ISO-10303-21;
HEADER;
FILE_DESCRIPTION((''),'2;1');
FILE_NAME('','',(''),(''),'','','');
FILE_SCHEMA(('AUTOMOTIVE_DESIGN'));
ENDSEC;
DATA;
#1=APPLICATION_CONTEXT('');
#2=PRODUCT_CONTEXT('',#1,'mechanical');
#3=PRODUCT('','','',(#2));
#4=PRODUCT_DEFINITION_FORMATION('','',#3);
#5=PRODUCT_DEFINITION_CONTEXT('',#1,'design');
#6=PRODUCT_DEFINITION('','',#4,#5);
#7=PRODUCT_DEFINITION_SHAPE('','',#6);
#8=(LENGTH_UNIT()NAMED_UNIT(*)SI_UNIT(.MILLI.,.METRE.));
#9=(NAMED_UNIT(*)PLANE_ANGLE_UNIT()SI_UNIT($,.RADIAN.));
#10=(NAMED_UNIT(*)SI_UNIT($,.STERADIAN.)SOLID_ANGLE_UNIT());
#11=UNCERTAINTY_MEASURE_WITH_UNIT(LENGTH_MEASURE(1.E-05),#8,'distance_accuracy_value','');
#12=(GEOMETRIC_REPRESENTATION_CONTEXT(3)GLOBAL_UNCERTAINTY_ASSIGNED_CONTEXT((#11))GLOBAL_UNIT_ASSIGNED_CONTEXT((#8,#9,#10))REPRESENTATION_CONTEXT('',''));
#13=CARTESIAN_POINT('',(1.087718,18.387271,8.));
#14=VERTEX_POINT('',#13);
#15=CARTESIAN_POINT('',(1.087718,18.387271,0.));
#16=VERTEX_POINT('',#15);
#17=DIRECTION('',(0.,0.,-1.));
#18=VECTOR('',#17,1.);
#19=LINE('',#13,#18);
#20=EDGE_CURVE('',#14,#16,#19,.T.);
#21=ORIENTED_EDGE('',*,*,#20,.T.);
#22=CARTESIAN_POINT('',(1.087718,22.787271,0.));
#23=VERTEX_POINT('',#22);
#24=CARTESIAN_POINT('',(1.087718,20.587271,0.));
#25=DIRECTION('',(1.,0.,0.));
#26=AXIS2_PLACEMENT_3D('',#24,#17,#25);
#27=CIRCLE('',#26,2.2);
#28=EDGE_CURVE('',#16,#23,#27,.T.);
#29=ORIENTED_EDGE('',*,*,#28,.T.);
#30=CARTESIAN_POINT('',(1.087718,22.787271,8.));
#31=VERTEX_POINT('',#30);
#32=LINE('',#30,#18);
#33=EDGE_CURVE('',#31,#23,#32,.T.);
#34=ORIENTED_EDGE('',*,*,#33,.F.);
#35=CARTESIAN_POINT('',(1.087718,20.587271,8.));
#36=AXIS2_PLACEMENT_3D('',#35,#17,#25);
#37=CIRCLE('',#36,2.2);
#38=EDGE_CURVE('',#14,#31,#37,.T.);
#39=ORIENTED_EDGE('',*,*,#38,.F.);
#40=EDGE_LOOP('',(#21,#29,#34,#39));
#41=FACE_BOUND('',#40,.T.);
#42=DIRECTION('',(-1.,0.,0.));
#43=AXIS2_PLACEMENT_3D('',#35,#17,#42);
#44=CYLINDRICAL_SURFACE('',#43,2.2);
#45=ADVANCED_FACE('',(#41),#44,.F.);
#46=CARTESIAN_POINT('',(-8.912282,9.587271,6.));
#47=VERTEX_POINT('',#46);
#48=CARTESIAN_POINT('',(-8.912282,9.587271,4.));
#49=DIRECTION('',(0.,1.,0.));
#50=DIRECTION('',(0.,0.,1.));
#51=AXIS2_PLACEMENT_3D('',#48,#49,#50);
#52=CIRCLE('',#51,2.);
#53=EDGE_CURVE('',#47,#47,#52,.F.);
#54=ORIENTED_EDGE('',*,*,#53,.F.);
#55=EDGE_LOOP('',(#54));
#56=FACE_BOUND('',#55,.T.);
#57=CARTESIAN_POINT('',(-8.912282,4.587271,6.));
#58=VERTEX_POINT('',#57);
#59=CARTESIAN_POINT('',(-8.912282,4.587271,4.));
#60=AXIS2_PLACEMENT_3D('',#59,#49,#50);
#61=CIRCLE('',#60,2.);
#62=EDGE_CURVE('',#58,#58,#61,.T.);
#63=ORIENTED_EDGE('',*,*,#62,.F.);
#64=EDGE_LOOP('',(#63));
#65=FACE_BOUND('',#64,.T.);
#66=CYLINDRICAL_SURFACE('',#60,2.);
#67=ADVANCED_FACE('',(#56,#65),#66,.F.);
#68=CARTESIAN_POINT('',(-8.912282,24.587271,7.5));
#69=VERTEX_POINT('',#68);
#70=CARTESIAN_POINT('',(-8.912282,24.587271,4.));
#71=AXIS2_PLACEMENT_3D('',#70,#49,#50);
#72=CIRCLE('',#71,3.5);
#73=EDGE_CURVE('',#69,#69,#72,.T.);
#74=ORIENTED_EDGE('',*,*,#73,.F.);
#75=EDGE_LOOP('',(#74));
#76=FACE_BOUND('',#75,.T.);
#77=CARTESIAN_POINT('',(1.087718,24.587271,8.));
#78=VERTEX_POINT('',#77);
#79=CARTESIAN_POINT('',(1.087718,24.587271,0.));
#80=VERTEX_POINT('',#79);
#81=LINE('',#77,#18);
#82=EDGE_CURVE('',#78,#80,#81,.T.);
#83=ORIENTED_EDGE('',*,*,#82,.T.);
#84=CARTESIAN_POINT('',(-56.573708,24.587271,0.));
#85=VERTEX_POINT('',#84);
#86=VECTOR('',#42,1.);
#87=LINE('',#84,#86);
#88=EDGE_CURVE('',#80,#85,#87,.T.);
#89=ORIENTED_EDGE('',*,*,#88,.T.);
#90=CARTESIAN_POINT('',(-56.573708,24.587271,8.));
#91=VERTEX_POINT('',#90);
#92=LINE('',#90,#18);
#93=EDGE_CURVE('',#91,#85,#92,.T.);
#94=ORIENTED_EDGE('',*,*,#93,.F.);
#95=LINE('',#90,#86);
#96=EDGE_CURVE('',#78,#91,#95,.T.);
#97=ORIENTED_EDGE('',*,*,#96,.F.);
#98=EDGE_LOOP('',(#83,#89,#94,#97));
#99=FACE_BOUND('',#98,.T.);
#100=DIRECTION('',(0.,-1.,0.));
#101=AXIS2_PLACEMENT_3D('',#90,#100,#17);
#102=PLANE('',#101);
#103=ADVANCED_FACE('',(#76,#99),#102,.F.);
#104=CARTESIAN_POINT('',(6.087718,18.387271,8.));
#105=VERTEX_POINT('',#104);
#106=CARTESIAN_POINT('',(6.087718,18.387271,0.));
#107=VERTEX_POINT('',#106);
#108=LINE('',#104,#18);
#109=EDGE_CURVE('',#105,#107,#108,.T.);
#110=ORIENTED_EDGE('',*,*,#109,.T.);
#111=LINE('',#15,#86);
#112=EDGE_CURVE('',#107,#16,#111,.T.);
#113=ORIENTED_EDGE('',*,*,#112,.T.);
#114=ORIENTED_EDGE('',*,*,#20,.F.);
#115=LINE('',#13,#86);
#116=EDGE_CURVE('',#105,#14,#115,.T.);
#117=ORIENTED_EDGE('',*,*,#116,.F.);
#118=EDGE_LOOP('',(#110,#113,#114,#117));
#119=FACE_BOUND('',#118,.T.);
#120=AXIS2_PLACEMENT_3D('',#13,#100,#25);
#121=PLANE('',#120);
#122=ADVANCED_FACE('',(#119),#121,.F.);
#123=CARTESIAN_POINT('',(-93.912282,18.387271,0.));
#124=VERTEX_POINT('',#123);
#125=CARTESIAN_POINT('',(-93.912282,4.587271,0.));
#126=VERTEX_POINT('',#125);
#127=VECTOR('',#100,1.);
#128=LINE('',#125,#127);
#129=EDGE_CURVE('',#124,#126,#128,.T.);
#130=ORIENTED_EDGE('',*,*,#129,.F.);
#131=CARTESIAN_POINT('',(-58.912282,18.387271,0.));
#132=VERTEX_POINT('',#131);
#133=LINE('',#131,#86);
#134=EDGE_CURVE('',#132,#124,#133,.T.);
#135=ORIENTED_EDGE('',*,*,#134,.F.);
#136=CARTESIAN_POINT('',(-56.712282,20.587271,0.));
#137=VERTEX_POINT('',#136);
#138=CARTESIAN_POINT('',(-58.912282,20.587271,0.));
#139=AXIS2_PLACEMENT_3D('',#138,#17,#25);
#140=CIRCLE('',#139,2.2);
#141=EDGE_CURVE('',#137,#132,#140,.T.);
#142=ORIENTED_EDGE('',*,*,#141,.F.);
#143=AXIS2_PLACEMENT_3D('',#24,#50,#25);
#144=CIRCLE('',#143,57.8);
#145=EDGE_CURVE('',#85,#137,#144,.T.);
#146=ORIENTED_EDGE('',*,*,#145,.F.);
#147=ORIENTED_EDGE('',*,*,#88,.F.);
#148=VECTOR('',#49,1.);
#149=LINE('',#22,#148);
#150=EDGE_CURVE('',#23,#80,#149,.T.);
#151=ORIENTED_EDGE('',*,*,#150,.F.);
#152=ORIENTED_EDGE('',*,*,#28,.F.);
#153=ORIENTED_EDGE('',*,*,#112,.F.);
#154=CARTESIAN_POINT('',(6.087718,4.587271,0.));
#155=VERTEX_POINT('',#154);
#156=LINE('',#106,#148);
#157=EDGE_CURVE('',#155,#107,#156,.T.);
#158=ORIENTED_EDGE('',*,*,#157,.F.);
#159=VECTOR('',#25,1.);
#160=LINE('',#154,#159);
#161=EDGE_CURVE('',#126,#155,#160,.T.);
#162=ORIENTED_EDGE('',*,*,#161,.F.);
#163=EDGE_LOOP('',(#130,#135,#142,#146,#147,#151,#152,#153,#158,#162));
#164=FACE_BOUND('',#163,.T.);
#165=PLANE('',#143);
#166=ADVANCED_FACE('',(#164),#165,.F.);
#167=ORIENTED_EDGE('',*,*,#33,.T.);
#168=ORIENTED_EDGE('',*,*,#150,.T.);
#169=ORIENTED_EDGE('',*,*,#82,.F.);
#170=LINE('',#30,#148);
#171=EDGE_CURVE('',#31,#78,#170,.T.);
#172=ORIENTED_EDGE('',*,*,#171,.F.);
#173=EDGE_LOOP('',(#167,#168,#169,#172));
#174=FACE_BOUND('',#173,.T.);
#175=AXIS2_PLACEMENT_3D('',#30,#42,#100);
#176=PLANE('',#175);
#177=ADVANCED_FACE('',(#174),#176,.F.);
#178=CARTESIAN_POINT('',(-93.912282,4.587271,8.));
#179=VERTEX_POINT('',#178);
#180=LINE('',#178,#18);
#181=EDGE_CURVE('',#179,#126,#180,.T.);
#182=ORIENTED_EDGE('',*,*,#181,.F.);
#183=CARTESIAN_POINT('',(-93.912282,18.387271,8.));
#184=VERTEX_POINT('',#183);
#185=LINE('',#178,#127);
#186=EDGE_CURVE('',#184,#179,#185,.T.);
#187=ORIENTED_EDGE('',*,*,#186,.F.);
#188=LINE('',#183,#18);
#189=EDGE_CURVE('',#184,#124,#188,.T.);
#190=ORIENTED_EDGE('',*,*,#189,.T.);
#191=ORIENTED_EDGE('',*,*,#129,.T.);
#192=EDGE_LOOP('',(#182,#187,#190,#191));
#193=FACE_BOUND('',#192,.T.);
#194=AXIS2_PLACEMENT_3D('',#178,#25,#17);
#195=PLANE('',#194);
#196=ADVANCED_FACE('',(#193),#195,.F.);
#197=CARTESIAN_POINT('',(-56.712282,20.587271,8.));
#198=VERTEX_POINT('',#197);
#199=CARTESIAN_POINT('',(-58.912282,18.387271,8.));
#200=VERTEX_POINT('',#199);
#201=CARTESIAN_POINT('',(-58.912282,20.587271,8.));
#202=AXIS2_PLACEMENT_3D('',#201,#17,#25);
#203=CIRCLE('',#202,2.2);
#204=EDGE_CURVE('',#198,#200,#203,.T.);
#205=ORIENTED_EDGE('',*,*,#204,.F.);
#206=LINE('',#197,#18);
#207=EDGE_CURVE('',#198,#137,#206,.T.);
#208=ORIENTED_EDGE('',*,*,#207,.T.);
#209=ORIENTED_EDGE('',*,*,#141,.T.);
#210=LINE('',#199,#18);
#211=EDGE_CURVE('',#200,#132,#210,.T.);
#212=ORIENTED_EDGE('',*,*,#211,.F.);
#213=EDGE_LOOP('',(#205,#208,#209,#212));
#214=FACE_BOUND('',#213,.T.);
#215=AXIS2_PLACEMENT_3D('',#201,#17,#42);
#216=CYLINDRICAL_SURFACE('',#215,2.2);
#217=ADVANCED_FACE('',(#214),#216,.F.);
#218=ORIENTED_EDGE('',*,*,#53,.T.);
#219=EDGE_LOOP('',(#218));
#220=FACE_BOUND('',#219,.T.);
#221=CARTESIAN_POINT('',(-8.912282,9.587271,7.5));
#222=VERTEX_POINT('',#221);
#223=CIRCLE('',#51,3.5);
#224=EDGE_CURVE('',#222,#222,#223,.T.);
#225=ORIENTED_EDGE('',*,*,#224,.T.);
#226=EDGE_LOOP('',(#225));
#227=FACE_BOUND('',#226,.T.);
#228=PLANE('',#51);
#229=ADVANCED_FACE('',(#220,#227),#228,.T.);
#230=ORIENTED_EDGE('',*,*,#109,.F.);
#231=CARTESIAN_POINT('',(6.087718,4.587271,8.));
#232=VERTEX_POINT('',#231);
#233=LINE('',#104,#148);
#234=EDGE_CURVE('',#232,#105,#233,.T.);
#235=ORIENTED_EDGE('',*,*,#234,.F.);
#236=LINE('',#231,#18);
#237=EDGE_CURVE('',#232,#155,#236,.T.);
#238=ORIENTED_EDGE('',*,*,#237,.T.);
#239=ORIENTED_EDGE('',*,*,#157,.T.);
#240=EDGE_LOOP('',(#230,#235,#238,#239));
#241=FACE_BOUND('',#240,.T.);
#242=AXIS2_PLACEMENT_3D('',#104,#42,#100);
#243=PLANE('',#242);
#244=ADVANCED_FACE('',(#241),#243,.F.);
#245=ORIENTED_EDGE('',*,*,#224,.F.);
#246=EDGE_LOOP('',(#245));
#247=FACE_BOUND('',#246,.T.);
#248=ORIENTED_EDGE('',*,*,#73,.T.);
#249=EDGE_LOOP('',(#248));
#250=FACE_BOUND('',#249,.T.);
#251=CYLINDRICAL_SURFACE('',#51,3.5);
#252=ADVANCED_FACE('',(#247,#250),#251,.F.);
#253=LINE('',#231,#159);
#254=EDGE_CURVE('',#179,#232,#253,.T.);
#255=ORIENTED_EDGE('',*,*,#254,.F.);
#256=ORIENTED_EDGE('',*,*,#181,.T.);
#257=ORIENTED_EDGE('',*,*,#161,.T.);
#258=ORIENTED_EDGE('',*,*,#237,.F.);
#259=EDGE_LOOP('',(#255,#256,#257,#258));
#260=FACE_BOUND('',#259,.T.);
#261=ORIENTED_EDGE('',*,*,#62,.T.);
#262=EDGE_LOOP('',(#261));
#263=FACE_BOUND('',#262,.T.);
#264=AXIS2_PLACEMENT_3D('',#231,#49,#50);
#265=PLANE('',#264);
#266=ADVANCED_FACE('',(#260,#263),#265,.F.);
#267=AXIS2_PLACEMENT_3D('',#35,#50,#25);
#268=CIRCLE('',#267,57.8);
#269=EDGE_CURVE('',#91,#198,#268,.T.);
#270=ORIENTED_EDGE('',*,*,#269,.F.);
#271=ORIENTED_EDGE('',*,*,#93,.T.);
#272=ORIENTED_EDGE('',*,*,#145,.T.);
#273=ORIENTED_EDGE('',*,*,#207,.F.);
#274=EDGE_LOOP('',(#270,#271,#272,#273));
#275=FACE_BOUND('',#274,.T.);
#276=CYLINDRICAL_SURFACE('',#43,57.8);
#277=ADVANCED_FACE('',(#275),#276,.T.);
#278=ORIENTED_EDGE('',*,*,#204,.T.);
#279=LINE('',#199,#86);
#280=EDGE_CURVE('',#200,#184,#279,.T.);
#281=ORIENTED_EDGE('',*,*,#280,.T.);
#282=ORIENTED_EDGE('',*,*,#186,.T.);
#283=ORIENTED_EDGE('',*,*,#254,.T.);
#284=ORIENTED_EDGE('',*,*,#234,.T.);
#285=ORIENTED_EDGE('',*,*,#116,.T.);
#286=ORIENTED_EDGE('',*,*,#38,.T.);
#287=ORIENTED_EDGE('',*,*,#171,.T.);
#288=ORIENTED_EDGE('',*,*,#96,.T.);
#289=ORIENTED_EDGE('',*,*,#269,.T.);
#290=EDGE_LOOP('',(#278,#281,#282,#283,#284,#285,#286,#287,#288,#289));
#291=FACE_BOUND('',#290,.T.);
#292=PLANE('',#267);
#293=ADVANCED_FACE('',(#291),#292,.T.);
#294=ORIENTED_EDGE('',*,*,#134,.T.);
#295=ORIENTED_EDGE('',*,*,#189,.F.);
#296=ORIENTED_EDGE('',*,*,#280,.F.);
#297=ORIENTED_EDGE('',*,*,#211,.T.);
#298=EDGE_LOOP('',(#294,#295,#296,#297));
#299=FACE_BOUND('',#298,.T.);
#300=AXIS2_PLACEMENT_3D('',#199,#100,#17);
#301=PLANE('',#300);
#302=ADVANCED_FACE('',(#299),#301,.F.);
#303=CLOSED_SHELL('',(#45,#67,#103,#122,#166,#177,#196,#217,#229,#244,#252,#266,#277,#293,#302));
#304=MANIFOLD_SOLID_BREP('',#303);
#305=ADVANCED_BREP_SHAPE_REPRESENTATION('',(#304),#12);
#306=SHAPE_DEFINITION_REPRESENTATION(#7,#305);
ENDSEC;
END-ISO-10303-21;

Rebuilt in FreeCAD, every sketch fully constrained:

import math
import FreeCAD as App
import Part
import Sketcher

V = App.Vector
Q = App.Units.Quantity

doc = App.newDocument("Part")
body = doc.addObject("PartDesign::Body", "Body")

# Sketch on XY plane
sketch1 = body.newObject("Sketcher::SketchObject", "Sketch")
sketch1.AttachmentSupport = (doc.getObject("XY_Plane"), [""])
sketch1.MapMode = "FlatFace"
sketch1.addGeometry(Part.LineSegment(V(1.1, 24.6, 0), V(-56.6, 24.6, 0)), False)
sketch1.addGeometry(Part.ArcOfCircle(Part.Circle(V(1.1, 20.6, 0), V(0, 0, 1), 57.8), math.radians(176.03), math.radians(180)), False)
sketch1.addGeometry(Part.ArcOfCircle(Part.Circle(V(-58.9, 20.6, 0), V(0, 0, 1), 2.2), math.radians(-90), math.radians(0)), False)
sketch1.addGeometry(Part.LineSegment(V(-58.9, 18.4, 0), V(-93.9, 18.4, 0)), False)
sketch1.addGeometry(Part.LineSegment(V(-93.9, 18.4, 0), V(-93.9, 4.6, 0)), False)
sketch1.addGeometry(Part.LineSegment(V(-93.9, 4.6, 0), V(6.1, 4.6, 0)), False)
sketch1.addGeometry(Part.LineSegment(V(6.1, 4.6, 0), V(6.1, 18.4, 0)), False)
sketch1.addGeometry(Part.LineSegment(V(6.1, 18.4, 0), V(1.1, 18.4, 0)), False)
sketch1.addGeometry(Part.ArcOfCircle(Part.Circle(V(1.1, 20.6, 0), V(0, 0, 1), 2.2), math.radians(90), math.radians(270)), False)
sketch1.addGeometry(Part.LineSegment(V(1.1, 22.8, 0), V(1.1, 24.6, 0)), False)
sketch1.addConstraint(Sketcher.Constraint("Coincident", 0, 2, 1, 1))
sketch1.addConstraint(Sketcher.Constraint("Tangent", 1, 2, 2, 2))
sketch1.addConstraint(Sketcher.Constraint("Tangent", 2, 1, 3, 1))
sketch1.addConstraint(Sketcher.Constraint("Coincident", 3, 2, 4, 1))
sketch1.addConstraint(Sketcher.Constraint("Coincident", 4, 2, 5, 1))
sketch1.addConstraint(Sketcher.Constraint("Coincident", 5, 2, 6, 1))
sketch1.addConstraint(Sketcher.Constraint("Coincident", 6, 2, 7, 1))
sketch1.addConstraint(Sketcher.Constraint("Tangent", 7, 2, 8, 2))
sketch1.addConstraint(Sketcher.Constraint("Coincident", 8, 1, 9, 1))
sketch1.addConstraint(Sketcher.Constraint("Coincident", 9, 2, 0, 1))
sketch1.addConstraint(Sketcher.Constraint("Horizontal", 0))
sketch1.addConstraint(Sketcher.Constraint("Horizontal", 3))
sketch1.addConstraint(Sketcher.Constraint("Vertical", 4))
sketch1.addConstraint(Sketcher.Constraint("Horizontal", 5))
sketch1.addConstraint(Sketcher.Constraint("Vertical", 6))
sketch1.addConstraint(Sketcher.Constraint("Horizontal", 7))
sketch1.addConstraint(Sketcher.Constraint("Vertical", 9))
sketch1.addConstraint(Sketcher.Constraint("Coincident", 8, 3, 1, 3))
sketch1.addConstraint(Sketcher.Constraint("Equal", 2, 8))
sketch1.addConstraint(Sketcher.Constraint("Horizontal", 1, 3, 2, 3))
sketch1.addConstraint(Sketcher.Constraint("Vertical", 7, 2, 8, 1))
sketch1.addConstraint(Sketcher.Constraint("Radius", 1, Q("57.8 mm")))
sketch1.addConstraint(Sketcher.Constraint("Radius", 2, Q("2.2 mm")))
sketch1.addConstraint(Sketcher.Constraint("DistanceX", 3, 2, 3, 1, Q("35 mm")))
sketch1.addConstraint(Sketcher.Constraint("DistanceX", 5, 1, 5, 2, Q("100 mm")))
sketch1.addConstraint(Sketcher.Constraint("DistanceY", 4, 2, 4, 1, Q("13.8 mm")))
sketch1.addConstraint(Sketcher.Constraint("DistanceY", 9, 1, 9, 2, Q("1.8 mm")))
sketch1.addConstraint(Sketcher.Constraint("DistanceY", -1, 1, 1, 3, Q("20.587271 mm")))
sketch1.addConstraint(Sketcher.Constraint("DistanceX", 0, 2, -1, 1, Q("56.573708 mm")))
pad1 = body.newObject("PartDesign::Pad", "Pad")
pad1.Profile = sketch1
pad1.Length = 8

# Sketch on XZ plane
sketch2 = body.newObject("Sketcher::SketchObject", "Sketch001")
sketch2.AttachmentSupport = (doc.getObject("XZ_Plane"), [""])
sketch2.MapMode = "FlatFace"
sketch2.AttachmentOffset = App.Placement(V(0, 0, -24.587271), App.Rotation())
sketch2.addGeometry(Part.Circle(V(-8.9, 4, 0), V(0, 0, 1), 2), False)
sketch2.addConstraint(Sketcher.Constraint("Diameter", 0, Q("4 mm")))
sketch2.addConstraint(Sketcher.Constraint("DistanceY", -1, 1, 0, 3, Q("4 mm")))
sketch2.addConstraint(Sketcher.Constraint("DistanceX", 0, 3, -1, 1, Q("8.912282 mm")))
pocket1 = body.newObject("PartDesign::Pocket", "Pocket")
pocket1.Profile = sketch2
pocket1.Length = 20
pocket1.Reversed = True

# Sketch on XZ plane
sketch3 = body.newObject("Sketcher::SketchObject", "Sketch002")
sketch3.AttachmentSupport = (doc.getObject("XZ_Plane"), [""])
sketch3.MapMode = "FlatFace"
sketch3.AttachmentOffset = App.Placement(V(0, 0, -24.587271), App.Rotation())
sketch3.addGeometry(Part.Circle(V(-8.9, 4, 0), V(0, 0, 1), 3.5), False)
sketch3.addConstraint(Sketcher.Constraint("Diameter", 0, Q("7 mm")))
sketch3.addConstraint(Sketcher.Constraint("DistanceY", -1, 1, 0, 3, Q("4 mm")))
sketch3.addConstraint(Sketcher.Constraint("DistanceX", 0, 3, -1, 1, Q("8.912282 mm")))
pocket2 = body.newObject("PartDesign::Pocket", "Pocket001")
pocket2.Profile = sketch3
pocket2.Length = 15
pocket2.Reversed = True

doc.recompute()
